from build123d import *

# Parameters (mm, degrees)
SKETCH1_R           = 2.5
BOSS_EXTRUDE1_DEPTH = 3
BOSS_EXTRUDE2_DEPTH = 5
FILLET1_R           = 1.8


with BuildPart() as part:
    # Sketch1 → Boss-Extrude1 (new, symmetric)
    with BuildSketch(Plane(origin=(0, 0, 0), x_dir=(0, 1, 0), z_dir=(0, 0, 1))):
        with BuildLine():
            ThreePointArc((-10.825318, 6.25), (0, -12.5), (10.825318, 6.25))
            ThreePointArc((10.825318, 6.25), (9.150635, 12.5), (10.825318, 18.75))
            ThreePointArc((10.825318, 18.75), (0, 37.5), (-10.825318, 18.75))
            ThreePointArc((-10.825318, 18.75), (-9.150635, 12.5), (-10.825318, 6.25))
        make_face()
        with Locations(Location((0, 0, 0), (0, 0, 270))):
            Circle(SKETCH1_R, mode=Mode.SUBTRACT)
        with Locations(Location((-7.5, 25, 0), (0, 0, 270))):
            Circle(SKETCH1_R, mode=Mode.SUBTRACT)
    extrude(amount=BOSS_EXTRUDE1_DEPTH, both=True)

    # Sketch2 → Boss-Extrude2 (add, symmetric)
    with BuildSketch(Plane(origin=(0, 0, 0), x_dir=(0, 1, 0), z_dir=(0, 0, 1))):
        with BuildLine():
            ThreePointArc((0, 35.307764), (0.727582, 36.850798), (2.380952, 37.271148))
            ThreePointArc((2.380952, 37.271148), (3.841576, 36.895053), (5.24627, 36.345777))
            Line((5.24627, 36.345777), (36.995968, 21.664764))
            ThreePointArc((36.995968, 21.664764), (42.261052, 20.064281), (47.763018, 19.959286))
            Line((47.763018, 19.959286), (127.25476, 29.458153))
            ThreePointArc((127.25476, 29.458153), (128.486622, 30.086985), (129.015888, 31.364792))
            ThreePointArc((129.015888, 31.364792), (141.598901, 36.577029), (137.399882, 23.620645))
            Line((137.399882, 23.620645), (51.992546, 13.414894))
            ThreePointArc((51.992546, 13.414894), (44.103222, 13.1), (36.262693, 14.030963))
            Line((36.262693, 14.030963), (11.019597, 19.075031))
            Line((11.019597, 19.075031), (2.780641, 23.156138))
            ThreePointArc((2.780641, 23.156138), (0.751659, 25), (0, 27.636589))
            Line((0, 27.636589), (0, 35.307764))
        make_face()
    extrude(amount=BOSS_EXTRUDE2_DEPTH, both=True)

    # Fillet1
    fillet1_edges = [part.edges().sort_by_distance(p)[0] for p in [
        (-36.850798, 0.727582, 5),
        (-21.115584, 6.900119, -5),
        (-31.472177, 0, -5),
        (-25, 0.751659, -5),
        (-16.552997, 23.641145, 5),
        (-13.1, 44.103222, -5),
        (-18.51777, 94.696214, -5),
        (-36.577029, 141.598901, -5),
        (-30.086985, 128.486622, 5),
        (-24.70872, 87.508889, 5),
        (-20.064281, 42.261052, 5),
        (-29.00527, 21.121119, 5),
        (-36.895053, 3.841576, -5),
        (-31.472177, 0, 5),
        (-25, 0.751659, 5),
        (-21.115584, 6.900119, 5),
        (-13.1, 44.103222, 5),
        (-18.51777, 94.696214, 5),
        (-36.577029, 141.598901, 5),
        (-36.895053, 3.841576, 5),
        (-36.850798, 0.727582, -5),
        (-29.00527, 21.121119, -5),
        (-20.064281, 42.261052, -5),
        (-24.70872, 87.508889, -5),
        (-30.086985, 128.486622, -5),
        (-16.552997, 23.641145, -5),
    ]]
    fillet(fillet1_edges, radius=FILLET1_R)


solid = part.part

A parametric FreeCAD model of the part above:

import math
import FreeCAD as App
import Part
import Sketcher
Q = App.Units.Quantity


def edges_at(feature, points):
    """Names of the edges that pass closest to the given points."""
    edges = feature.Shape.Edges
    near = lambda p: min(range(len(edges)), key=lambda i: edges[i].distToShape(Part.Vertex(*p))[0])
    return sorted({f"Edge{near(p) + 1}" for p in points})

doc = App.newDocument("Part")
params = doc.addObject("Spreadsheet::Sheet", "Params")
for row, (alias, value) in enumerate([
    ("sketch1_diameter", "5 mm"),
    ("sketch1_radius", "12.5 mm"),
    ("pad1_length", "6 mm"),
    ("sketch2_radius", "2 mm"),
    ("sketch2_radius2", "7.5 mm"),
    ("pad2_length", "10 mm"),
    ("fillet_radius", "1.8 mm"),
], start=1):
    params.set(f"A{row}", alias)
    params.set(f"B{row}", "=" + value)
    params.setAlias(f"B{row}", alias)

body = doc.addObject("PartDesign::Body", "Body")

# Sketch on XY plane
sketch1 = body.newObject("Sketcher::SketchObject", "Sketch")
sketch1.AttachmentSupport = (doc.getObject("XY_Plane"), [""])
sketch1.MapMode = "FlatFace"
sketch1.addGeometry(Part.ArcOfCircle(Part.Circle(App.Vector(0, 0, 0), App.Vector(0, 0, 1), 12.5), math.radians(-120), math.radians(120)), False)
sketch1.addGeometry(Part.ArcOfCircle(Part.Circle(App.Vector(-12.5, 21.7, 0), App.Vector(0, 0, 1), 12.5), math.radians(-120), math.radians(-60)), False)
sketch1.addGeometry(Part.ArcOfCircle(Part.Circle(App.Vector(-25, 0, 0), App.Vector(0, 0, 1), 12.5), math.radians(60), math.radians(300)), False)
sketch1.addGeometry(Part.ArcOfCircle(Part.Circle(App.Vector(-12.5, -21.7, 0), App.Vector(0, 0, 1), 12.5), math.radians(60), math.radians(120)), False)
sketch1.addGeometry(Part.Circle(App.Vector(0, 0, 0), App.Vector(0, 0, 1), 2.5), False)
sketch1.addGeometry(Part.Circle(App.Vector(-25, -7.5, 0), App.Vector(0, 0, 1), 2.5), False)
sketch1.addConstraint(Sketcher.Constraint("Tangent", 0, 2, 1, 2))
sketch1.addConstraint(Sketcher.Constraint("Tangent", 1, 1, 2, 1))
sketch1.addConstraint(Sketcher.Constraint("Tangent", 2, 2, 3, 2))
sketch1.addConstraint(Sketcher.Constraint("Tangent", 3, 1, 0, 1))
sketch1.addConstraint(Sketcher.Constraint("Coincident", 0, 3, -1, 1))
sketch1.addConstraint(Sketcher.Constraint("Coincident", 4, 3, -1, 1))
sketch1.addConstraint(Sketcher.Constraint("Equal", 0, 2))
sketch1.addConstraint(Sketcher.Constraint("Equal", 1, 3))
sketch1.addConstraint(Sketcher.Constraint("Equal", 4, 5))
sketch1.addConstraint(Sketcher.Constraint("PointOnObject", 2, 3, -1))
sketch1.addConstraint(Sketcher.Constraint("Vertical", 2, 3, 5, 3))
sketch1.addConstraint(Sketcher.Constraint("Diameter", 4, 5.0))
sketch1.addConstraint(Sketcher.Constraint("Radius", 0, 12.5))
sketch1.addConstraint(Sketcher.Constraint("DistanceX", 2, 3, -1, 1, 25.0))
sketch1.addConstraint(Sketcher.Constraint("DistanceY", 5, 3, -1, 1, 7.5))
sketch1.addConstraint(Sketcher.Constraint("DistanceX", 1, 1, 0, 2, 12.5))
sketch1.setExpression("Constraints[11]", "Params.sketch1_diameter")
sketch1.setExpression("Constraints[12]", "Params.sketch1_radius")
pad1 = body.newObject("PartDesign::Pad", "Pad")
pad1.Profile = sketch1
pad1.setExpression("Length", "Params.pad1_length")
pad1.Midplane = True

# Sketch on XY plane
sketch2 = body.newObject("Sketcher::SketchObject", "Sketch001")
sketch2.AttachmentSupport = (doc.getObject("XY_Plane"), [""])
sketch2.MapMode = "FlatFace"
sketch2.addGeometry(Part.ArcOfCircle(Part.Circle(App.Vector(-35.3, 2, 0), App.Vector(0, 0, 1), 2), math.radians(169), math.radians(270)), False)
sketch2.addGeometry(Part.LineSegment(App.Vector(-35.3, 0, 0), App.Vector(-27.6, 0, 0)), False)
sketch2.addGeometry(Part.ArcOfCircle(Part.Circle(App.Vector(-27.6, 5, 0), App.Vector(0, 0, 1), 5), math.radians(-90), math.radians(-26)), False)
sketch2.addGeometry(Part.LineSegment(App.Vector(-23.2, 2.8, 0), App.Vector(-19.1, 11, 0)), False)
sketch2.addGeometry(Part.LineSegment(App.Vector(-19.1, 11, 0), App.Vector(-14, 36.3, 0)), False)
sketch2.addGeometry(Part.ArcOfCircle(Part.Circle(App.Vector(-63.1, 46.1, 0), App.Vector(0, 0, 1), 50), math.radians(-11.3), math.radians(6.81)), False)
sketch2.addGeometry(Part.LineSegment(App.Vector(-13.4, 52, 0), App.Vector(-23.6, 137.4, 0)), False)
sketch2.addGeometry(Part.ArcOfCircle(Part.Circle(App.Vector(-31.1, 136.5, 0), App.Vector(0, 0, 1), 7.5), math.radians(7), math.radians(268)), False)
sketch2.addGeometry(Part.ArcOfCircle(Part.Circle(App.Vector(-31.4, 127, 0), App.Vector(0, 0, 1), 2), math.radians(7), math.radians(88)), False)
sketch2.addGeometry(Part.LineSegment(App.Vector(-29.5, 127.3, 0), App.Vector(-20, 47.8, 0)), False)
sketch2.addGeometry(Part.ArcOfCircle(Part.Circle(App.Vector(-39.8, 45.4, 0), App.Vector(0, 0, 1), 20), math.radians(-25), math.radians(7)), False)
sketch2.addGeometry(Part.LineSegment(App.Vector(-21.7, 37, 0), App.Vector(-36.3, 5.2, 0)), False)
sketch2.addGeometry(Part.ArcOfCircle(Part.Circle(App.Vector(-25, 0, 0), App.Vector(0, 0, 1), 12.5), math.radians(155.18), math.radians(169.02)), False)
sketch2.addConstraint(Sketcher.Constraint("Tangent", 0, 2, 1, 1))
sketch2.addConstraint(Sketcher.Constraint("Tangent", 1, 2, 2, 1))
sketch2.addConstraint(Sketcher.Constraint("Tangent", 2, 2, 3, 1))
sketch2.addConstraint(Sketcher.Constraint("Coincident", 3, 2, 4, 1))
sketch2.addConstraint(Sketcher.Constraint("Tangent", 4, 2, 5, 1))
sketch2.addConstraint(Sketcher.Constraint("Tangent", 5, 2, 6, 1))
sketch2.addConstraint(Sketcher.Constraint("Tangent", 6, 2, 7, 1))
sketch2.addConstraint(Sketcher.Constraint("Tangent", 7, 2, 8, 2))
sketch2.addConstraint(Sketcher.Constraint("Tangent", 8, 1, 9, 1))
sketch2.addConstraint(Sketcher.Constraint("Tangent", 9, 2, 10, 2))
sketch2.addConstraint(Sketcher.Constraint("Tangent", 10, 1, 11, 1))
sketch2.addConstraint(Sketcher.Constraint("Tangent", 11, 2, 12, 1))
sketch2.addConstraint(Sketcher.Constraint("Tangent", 12, 2, 0, 1))
sketch2.addConstraint(Sketcher.Constraint("Horizontal", 1))
sketch2.addConstraint(Sketcher.Constraint("Equal", 0, 8))
sketch2.addConstraint(Sketcher.Constraint("PointOnObject", 0, 2, -1))
sketch2.addConstraint(Sketcher.Constraint("Parallel", 6, 9))
sketch2.addConstraint(Sketcher.Constraint("Radius", 0, 2.0))
sketch2.addConstraint(Sketcher.Constraint("Radius", 7, 7.5))
sketch2.addConstraint(Sketcher.Constraint("Angle", 4, Q("78.700001 deg")))
sketch2.addConstraint(Sketcher.Constraint("DistanceY", -1, 1, 5, 3, 46.060001))
sketch2.addConstraint(Sketcher.Constraint("DistanceY", -1, 1, 7, 3, 136.51))
sketch2.addConstraint(Sketcher.Constraint("DistanceY", -1, 1, 10, 3, 45.390001))
sketch2.addConstraint(Sketcher.Constraint("Radius", 12, 12.500072))
sketch2.addConstraint(Sketcher.Constraint("Radius", 2, 4.999997))
sketch2.addConstraint(Sketcher.Constraint("Radius", 5, 49.999984))
sketch2.addConstraint(Sketcher.Constraint("Radius", 10, 20.000002))
sketch2.addConstraint(Sketcher.Constraint("DistanceX", 0, 3, 7, 3, 4.240099))
sketch2.addConstraint(Sketcher.Constraint("DistanceY", 2, 3, 3, 2, 6.0196))
sketch2.addConstraint(Sketcher.Constraint("DistanceX", 12, 3, 3, 2, 5.9249))
sketch2.addConstraint(Sketcher.Constraint("DistanceX", 10, 1, 4, 2, 7.633801))
sketch2.addConstraint(Sketcher.Constraint("DistanceX", 1, 1, 1, 2, 7.671175))
sketch2.addConstraint(Sketcher.Constraint("DistanceX", 5, 3, -1, 1, 63.06168))
sketch2.addConstraint(Sketcher.Constraint("DistanceY", -1, 1, 8, 3, 127.017458))
sketch2.setExpression("Constraints[17]", "Params.sketch2_radius")
sketch2.setExpression("Constraints[18]", "Params.sketch2_radius2")
pad2 = body.newObject("PartDesign::Pad", "Pad001")
pad2.Profile = sketch2
pad2.setExpression("Length", "Params.pad2_length")
pad2.Midplane = True
doc.recompute()

fillet = body.newObject("PartDesign::Fillet", "Fillet")
fillet.Base = (pad2, edges_at(pad2, [
    (-36.851, 0.728, 5),
    (-21.116, 6.9, -5),
    (-31.472, 0, -5),
    (-25, 0.752, -5),
    (-16.553, 23.641, 5),
    (-13.1, 44.103, -5),
    (-18.518, 94.696, -5),
    (-36.577, 141.599, -5),
    (-30.087, 128.487, 5),
    (-24.709, 87.509, 5),
    (-20.064, 42.261, 5),
    (-29.005, 21.121, 5),
    (-36.895, 3.842, -5),
    (-31.472, 0, 5),
    (-25, 0.752, 5),
    (-21.116, 6.9, 5),
    (-13.1, 44.103, 5),
    (-18.518, 94.696, 5),
    (-36.577, 141.599, 5),
    (-36.895, 3.842, 5),
    (-36.851, 0.728, -5),
    (-29.005, 21.121, -5),
    (-20.064, 42.261, -5),
    (-24.709, 87.509, -5),
    (-30.087, 128.487, -5),
    (-16.553, 23.641, -5),
]))
fillet.setExpression("Radius", "Params.fillet_radius")

doc.recompute()
